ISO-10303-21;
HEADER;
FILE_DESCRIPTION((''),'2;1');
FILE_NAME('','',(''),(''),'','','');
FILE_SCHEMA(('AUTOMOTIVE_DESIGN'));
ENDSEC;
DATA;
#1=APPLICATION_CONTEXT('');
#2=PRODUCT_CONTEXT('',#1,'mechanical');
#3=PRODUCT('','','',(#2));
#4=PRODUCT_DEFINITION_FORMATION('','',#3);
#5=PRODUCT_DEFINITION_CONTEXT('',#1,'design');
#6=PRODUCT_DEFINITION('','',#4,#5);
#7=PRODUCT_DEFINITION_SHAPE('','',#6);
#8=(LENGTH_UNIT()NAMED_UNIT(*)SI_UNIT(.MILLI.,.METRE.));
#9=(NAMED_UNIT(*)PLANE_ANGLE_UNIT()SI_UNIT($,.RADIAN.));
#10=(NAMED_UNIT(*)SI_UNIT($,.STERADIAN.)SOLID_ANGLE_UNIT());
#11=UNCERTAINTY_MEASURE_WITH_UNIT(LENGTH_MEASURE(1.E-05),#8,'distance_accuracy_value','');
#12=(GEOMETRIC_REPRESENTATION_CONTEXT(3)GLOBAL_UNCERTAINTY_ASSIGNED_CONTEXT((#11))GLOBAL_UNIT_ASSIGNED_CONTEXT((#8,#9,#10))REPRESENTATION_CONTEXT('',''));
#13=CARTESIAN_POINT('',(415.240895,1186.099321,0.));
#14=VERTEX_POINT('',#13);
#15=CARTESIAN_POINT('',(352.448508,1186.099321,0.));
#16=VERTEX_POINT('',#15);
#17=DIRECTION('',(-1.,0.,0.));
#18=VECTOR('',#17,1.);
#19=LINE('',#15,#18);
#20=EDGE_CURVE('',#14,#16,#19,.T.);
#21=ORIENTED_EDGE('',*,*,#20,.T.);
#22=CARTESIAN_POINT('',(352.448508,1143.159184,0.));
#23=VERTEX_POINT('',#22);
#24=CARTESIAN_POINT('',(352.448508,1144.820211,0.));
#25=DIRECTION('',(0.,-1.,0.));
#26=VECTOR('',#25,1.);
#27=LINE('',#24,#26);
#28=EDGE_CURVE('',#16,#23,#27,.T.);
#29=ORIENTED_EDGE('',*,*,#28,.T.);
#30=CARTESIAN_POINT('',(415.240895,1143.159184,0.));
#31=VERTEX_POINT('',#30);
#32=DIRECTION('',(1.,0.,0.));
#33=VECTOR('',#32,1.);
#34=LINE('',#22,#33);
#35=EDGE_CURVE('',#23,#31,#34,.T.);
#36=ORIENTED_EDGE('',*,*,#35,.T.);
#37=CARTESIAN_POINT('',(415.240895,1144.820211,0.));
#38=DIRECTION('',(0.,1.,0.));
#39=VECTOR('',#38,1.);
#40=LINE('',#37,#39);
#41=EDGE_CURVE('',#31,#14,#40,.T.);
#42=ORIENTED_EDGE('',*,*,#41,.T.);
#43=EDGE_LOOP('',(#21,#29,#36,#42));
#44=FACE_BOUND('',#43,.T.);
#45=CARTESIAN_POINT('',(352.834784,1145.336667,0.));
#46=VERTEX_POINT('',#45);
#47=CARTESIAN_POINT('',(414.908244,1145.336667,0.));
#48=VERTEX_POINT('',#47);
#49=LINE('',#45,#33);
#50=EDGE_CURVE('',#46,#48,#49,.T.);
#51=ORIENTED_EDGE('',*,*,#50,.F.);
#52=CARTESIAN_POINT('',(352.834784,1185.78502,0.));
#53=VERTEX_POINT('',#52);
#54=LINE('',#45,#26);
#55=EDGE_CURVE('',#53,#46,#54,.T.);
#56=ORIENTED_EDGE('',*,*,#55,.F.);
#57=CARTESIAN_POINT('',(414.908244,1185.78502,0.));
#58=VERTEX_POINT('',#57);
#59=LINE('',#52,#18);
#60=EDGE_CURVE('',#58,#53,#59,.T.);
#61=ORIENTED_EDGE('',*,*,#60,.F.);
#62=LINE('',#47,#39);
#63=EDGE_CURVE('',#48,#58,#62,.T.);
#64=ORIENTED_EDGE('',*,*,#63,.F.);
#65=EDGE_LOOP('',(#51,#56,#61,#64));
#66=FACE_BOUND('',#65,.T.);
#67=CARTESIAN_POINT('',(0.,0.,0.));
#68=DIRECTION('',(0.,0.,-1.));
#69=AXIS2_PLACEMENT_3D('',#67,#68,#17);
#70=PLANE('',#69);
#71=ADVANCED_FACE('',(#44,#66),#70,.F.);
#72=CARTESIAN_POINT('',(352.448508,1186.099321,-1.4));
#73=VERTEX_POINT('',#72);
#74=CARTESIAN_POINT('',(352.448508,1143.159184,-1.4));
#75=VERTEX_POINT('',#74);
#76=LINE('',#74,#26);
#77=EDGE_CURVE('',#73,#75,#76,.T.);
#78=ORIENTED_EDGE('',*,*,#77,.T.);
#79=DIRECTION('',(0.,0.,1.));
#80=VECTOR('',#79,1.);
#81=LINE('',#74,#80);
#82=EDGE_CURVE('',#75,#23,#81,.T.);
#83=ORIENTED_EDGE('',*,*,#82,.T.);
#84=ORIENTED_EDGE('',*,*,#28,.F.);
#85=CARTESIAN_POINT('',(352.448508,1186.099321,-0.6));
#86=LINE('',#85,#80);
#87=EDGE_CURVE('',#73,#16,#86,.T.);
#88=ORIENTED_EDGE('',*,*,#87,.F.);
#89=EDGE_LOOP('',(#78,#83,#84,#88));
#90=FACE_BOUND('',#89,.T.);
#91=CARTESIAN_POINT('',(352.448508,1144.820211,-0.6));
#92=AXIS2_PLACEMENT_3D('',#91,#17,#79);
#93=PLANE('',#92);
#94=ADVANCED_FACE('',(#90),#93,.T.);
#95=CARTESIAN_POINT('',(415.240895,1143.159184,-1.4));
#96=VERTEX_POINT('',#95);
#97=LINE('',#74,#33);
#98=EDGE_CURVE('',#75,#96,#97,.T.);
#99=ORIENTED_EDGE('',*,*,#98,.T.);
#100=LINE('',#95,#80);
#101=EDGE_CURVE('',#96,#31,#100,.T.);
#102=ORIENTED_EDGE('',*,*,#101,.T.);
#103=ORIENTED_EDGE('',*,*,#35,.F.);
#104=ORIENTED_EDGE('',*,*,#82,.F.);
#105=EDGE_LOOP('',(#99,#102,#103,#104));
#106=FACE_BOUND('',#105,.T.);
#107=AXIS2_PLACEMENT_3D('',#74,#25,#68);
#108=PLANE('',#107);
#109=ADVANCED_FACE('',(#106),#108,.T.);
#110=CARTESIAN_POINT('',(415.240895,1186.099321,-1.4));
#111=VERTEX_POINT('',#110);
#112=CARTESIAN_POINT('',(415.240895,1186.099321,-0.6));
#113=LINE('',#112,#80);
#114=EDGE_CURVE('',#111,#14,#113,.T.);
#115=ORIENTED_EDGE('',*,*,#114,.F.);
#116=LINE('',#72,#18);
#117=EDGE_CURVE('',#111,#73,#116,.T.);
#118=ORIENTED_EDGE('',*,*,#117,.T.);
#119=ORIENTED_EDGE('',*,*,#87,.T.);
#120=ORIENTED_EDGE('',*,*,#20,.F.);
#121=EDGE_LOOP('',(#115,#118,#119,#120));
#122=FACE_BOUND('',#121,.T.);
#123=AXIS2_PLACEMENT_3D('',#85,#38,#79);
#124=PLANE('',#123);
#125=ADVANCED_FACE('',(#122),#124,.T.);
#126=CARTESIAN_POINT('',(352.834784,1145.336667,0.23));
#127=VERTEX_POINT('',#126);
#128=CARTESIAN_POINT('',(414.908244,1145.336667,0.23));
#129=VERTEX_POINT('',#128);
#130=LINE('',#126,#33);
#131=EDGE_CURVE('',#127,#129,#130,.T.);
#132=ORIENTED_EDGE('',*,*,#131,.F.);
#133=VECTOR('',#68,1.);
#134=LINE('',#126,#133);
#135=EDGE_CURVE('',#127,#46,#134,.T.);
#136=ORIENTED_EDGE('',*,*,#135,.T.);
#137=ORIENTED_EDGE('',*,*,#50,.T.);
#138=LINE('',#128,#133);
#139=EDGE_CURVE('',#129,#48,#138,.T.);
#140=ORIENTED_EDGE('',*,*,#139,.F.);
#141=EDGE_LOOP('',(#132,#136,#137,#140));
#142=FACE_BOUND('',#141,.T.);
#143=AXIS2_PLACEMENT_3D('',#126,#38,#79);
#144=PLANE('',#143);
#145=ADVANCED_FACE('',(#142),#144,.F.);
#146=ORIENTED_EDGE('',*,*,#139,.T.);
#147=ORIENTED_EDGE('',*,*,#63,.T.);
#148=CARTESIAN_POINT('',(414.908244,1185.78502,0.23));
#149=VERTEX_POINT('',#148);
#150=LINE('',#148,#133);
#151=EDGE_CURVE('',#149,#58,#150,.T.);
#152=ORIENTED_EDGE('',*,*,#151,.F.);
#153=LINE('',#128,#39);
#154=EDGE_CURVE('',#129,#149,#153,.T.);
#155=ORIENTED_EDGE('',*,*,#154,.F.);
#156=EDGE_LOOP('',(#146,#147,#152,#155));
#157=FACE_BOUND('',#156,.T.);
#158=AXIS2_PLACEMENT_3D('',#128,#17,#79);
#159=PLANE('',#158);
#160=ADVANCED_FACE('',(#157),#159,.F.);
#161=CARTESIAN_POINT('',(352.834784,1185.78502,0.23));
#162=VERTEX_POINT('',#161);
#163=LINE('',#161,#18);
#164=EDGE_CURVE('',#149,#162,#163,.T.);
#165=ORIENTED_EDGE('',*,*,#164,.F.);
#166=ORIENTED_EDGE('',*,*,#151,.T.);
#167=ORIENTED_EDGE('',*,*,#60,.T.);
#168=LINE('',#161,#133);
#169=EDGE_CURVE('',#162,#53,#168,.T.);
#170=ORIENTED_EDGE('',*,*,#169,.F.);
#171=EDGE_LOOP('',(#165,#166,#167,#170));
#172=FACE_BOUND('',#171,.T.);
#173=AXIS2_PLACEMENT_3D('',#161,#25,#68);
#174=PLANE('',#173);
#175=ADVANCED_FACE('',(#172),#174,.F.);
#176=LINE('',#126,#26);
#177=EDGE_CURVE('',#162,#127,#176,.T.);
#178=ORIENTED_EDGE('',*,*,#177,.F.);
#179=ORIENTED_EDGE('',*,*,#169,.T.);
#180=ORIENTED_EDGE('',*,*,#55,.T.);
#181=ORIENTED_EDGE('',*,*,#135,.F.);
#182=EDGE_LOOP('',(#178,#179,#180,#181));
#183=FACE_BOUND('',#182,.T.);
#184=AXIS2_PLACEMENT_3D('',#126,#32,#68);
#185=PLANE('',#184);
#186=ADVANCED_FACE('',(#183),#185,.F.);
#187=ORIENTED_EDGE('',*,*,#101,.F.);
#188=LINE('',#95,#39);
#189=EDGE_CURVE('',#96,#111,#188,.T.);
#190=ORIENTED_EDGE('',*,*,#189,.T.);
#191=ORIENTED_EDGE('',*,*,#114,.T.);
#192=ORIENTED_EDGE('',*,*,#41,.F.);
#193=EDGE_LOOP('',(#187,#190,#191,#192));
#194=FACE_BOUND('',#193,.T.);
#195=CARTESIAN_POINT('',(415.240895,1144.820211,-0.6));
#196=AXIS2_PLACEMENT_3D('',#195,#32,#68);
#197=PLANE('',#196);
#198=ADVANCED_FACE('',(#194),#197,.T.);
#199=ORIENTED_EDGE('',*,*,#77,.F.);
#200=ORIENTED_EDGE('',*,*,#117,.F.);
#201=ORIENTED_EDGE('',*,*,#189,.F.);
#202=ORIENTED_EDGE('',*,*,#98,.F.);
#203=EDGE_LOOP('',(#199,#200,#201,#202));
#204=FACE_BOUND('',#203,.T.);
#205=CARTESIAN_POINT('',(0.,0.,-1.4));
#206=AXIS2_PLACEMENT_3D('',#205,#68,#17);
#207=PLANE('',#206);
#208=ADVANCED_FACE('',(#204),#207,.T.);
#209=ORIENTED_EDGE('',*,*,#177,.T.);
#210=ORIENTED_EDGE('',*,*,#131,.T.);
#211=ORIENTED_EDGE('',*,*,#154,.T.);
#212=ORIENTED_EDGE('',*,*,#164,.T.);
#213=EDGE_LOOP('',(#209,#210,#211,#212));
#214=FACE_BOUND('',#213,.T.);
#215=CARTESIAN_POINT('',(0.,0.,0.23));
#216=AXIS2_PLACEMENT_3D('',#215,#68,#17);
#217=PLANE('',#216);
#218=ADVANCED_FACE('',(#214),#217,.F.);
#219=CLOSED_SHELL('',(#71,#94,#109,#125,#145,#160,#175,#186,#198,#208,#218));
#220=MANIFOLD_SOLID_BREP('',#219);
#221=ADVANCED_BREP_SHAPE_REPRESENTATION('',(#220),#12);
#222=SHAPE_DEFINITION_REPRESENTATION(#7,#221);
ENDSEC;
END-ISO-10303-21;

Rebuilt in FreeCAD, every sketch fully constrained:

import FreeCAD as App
import Part
import Sketcher
from FreeCAD import Vector
Q = App.Units.Quantity


def add_polygon(sketch, points):
    """Adds a closed chain of lines whose ends are joined by coincident constraints."""
    first, n = sketch.GeometryCount, len(points)
    for a, b in zip(points, points[1:] + points[:1]):
        sketch.addGeometry(Part.LineSegment(App.Vector(*a, 0), App.Vector(*b, 0)), False)
    for i in range(n):
        sketch.addConstraint(Sketcher.Constraint("Coincident", first + i, 2, first + (i + 1) % n, 1))

doc = App.newDocument("Part")
body = doc.addObject("PartDesign::Body", "Body")

sketch1 = doc.addObject("Sketcher::SketchObject", "Sketch")
body.addObject(sketch1)
sketch1.AttachmentSupport = (doc.XY_Plane, [""])
sketch1.MapMode = "FlatFace"
add_polygon(sketch1, [(353, 1186), (353, 1145), (415, 1145), (415, 1186)])
sketch1.addConstraint([
    Sketcher.Constraint("Vertical", 0),
    Sketcher.Constraint("Horizontal", 1),
    Sketcher.Constraint("Vertical", 2),
    Sketcher.Constraint("Horizontal", 3),
    Sketcher.Constraint("DistanceX", 1, 1, 1, 2, Q("62.073461 mm")),
    Sketcher.Constraint("DistanceY", 0, 2, 0, 1, Q("40.448353 mm")),
    Sketcher.Constraint("DistanceY", -1, 1, 2, 2, Q("1185.78502 mm")),
    Sketcher.Constraint("DistanceX", -1, 1, 0, 2, Q("352.834784 mm")),
])
pad1 = doc.addObject("PartDesign::Pad", "Pad")
body.addObject(pad1)
pad1.Profile = sketch1
pad1.Length = 0.23

sketch2 = doc.addObject("Sketcher::SketchObject", "Sketch001")
body.addObject(sketch2)
sketch2.AttachmentSupport = (doc.XY_Plane, [""])
sketch2.MapMode = "FlatFace"
add_polygon(sketch2, [(352, 1186), (352, 1145), (415, 1145), (415, 1186)])
sketch2.addConstraint([
    Sketcher.Constraint("Vertical", 0),
    Sketcher.Constraint("Horizontal", 1),
    Sketcher.Constraint("Vertical", 2),
    Sketcher.Constraint("Horizontal", 3),
    Sketcher.Constraint("DistanceY", 0, 2, 0, 1, Q("41.27911 mm")),
    Sketcher.Constraint("DistanceX", 1, 1, 1, 2, Q("62.792387 mm")),
    Sketcher.Constraint("DistanceX", -1, 1, 0, 2, Q("352.448508 mm")),
    Sketcher.Constraint("DistanceY", -1, 1, 0, 2, Q("1144.820211 mm")),
])
pad2 = doc.addObject("PartDesign::Pad", "Pad001")
body.addObject(pad2)
pad2.Profile = sketch2
pad2.Length = 0.6
pad2.Reversed = True

sketch3 = doc.addObject("Sketcher::SketchObject", "Sketch002")
body.addObject(sketch3)
sketch3.AttachmentSupport = (doc.XY_Plane, [""])
sketch3.MapMode = "FlatFace"
add_polygon(sketch3, [(352, 1186), (352, 1143), (415, 1143), (415, 1186)])
sketch3.addConstraint([
    Sketcher.Constraint("Vertical", 0),
    Sketcher.Constraint("Horizontal", 1),
    Sketcher.Constraint("Vertical", 2),
    Sketcher.Constraint("Horizontal", 3),
    Sketcher.Constraint("DistanceX", 1, 1, 1, 2, Q("62.792387 mm")),
    Sketcher.Constraint("DistanceY", 0, 2, 0, 1, Q("42.940137 mm")),
    Sketcher.Constraint("DistanceX", -1, 1, 0, 2, Q("352.448508 mm")),
    Sketcher.Constraint("DistanceY", -1, 1, 2, 2, Q("1186.099321 mm")),
])
pad3 = doc.addObject("PartDesign::Pad", "Pad002")
body.addObject(pad3)
pad3.Profile = sketch3
pad3.Length = 1.4
pad3.Reversed = True

doc.recompute()
